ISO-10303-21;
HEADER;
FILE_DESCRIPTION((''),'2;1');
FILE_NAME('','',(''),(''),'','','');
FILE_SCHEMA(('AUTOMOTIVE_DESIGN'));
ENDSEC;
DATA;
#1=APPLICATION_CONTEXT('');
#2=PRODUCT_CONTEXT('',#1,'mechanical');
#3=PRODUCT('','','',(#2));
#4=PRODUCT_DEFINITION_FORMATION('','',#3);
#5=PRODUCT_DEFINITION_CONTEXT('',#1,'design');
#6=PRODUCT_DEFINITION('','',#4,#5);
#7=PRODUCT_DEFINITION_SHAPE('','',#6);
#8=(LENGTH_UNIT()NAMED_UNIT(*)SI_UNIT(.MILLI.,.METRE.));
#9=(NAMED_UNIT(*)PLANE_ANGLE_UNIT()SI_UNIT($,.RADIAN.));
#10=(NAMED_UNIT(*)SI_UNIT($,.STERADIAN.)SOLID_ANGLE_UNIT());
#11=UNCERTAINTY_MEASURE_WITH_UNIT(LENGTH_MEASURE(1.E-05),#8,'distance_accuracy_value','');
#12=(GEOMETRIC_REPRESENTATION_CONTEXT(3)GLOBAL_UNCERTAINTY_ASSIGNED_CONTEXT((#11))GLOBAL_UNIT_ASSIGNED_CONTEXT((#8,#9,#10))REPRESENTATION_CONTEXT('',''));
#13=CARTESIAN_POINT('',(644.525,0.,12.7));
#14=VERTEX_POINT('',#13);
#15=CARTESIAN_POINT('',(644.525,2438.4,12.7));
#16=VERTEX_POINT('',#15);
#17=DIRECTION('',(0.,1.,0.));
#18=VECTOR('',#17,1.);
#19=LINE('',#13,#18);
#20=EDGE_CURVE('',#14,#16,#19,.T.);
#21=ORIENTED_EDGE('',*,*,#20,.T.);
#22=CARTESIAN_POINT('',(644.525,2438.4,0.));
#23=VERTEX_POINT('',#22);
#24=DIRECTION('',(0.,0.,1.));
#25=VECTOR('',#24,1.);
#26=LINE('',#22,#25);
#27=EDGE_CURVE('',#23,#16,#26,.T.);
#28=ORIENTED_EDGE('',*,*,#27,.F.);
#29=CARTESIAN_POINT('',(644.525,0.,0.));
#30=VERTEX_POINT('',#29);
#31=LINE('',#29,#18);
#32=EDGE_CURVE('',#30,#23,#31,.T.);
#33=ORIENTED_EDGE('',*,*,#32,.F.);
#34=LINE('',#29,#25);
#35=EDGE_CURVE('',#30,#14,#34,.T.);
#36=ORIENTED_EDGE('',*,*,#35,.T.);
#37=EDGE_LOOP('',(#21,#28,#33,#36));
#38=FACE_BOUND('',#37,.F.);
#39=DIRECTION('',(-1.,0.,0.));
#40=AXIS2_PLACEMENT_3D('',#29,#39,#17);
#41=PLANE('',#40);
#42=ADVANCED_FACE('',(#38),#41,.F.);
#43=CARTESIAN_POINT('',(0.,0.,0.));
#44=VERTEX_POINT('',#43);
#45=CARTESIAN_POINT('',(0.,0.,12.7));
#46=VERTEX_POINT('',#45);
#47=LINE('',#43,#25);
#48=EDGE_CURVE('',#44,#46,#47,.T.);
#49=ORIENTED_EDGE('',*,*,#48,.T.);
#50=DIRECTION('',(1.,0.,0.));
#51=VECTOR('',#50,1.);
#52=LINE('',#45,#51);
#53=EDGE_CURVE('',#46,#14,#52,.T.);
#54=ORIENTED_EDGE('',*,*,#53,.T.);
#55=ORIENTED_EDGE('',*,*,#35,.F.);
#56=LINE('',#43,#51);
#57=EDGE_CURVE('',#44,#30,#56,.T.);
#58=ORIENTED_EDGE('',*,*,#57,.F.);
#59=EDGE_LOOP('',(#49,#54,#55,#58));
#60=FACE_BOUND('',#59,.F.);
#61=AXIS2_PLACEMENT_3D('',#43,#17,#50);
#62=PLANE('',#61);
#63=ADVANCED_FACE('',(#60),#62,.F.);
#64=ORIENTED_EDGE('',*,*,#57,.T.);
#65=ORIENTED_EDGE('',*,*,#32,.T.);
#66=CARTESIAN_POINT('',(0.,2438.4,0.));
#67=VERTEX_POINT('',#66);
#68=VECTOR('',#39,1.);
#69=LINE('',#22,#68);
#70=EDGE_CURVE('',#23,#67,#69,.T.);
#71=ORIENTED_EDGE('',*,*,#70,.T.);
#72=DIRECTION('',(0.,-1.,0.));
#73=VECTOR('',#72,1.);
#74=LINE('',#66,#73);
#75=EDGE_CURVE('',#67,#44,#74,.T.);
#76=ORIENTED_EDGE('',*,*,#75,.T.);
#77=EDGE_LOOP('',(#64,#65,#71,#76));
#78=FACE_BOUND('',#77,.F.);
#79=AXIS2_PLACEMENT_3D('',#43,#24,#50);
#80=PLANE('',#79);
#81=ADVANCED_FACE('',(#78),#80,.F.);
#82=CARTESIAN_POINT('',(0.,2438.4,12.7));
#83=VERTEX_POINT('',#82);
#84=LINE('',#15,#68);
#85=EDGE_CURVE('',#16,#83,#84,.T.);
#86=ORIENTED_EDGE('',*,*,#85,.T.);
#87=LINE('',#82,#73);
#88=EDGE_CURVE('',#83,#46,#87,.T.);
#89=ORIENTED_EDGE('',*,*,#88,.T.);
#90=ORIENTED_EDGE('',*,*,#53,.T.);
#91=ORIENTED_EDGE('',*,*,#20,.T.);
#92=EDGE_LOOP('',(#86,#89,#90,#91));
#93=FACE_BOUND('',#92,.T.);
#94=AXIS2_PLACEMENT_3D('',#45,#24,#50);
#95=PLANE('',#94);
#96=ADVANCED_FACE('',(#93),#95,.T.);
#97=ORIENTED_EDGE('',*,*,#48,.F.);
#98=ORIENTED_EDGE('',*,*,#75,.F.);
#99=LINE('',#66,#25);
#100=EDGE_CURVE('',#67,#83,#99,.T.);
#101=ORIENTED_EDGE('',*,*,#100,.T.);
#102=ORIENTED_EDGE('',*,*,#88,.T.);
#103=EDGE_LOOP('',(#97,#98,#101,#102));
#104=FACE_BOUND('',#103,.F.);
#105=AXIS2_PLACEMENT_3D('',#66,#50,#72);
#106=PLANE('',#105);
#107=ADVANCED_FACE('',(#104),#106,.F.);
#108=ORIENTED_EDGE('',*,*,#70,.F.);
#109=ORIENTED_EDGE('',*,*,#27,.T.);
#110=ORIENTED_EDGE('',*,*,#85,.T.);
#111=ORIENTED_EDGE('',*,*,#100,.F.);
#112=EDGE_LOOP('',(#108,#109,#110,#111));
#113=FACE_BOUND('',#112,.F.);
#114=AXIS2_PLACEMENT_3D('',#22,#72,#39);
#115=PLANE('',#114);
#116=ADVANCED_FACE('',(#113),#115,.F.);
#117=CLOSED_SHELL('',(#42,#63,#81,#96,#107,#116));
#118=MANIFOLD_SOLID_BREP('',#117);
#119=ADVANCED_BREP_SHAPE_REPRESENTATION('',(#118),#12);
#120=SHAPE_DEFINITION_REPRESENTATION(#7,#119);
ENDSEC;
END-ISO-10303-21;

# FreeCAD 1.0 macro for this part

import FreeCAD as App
import Part
import Sketcher
from FreeCAD import Vector
Q = App.Units.Quantity

doc = App.newDocument("Part")
body = doc.addObject("PartDesign::Body", "Body")

# Sketch on XY plane
sketch1 = doc.addObject("Sketcher::SketchObject", "Sketch")
body.addObject(sketch1)
sketch1.AttachmentSupport = (doc.XY_Plane, [""])
sketch1.MapMode = "FlatFace"
sketch1.addGeometry([
    Part.LineSegment(Vector(0, 2438.4, 0), Vector(0, 0, 0)),
    Part.LineSegment(Vector(0, 0, 0), Vector(644.525, 0, 0)),
    Part.LineSegment(Vector(644.525, 0, 0), Vector(644.525, 2438.4, 0)),
    Part.LineSegment(Vector(644.525, 2438.4, 0), Vector(0, 2438.4, 0)),
], False)
sketch1.addConstraint([
    Sketcher.Constraint("Coincident", 0, 2, 1, 1),
    Sketcher.Constraint("Coincident", 1, 2, 2, 1),
    Sketcher.Constraint("Coincident", 2, 2, 3, 1),
    Sketcher.Constraint("Coincident", 3, 2, 0, 1),
    Sketcher.Constraint("Vertical", 0),
    Sketcher.Constraint("Horizontal", 1),
    Sketcher.Constraint("Vertical", 2),
    Sketcher.Constraint("Horizontal", 3),
    Sketcher.Constraint("Coincident", 0, 2, -1, 1),
    Sketcher.Constraint("DistanceY", 0, 2, 0, 1, Q("96 in")),
    Sketcher.Constraint("DistanceX", 1, 1, 1, 2, Q("25.375 in")),
])
pad1 = doc.addObject("PartDesign::Pad", "Pad")
body.addObject(pad1)
pad1.Profile = sketch1
pad1.Length = Q("0.5 in")

doc.recompute()
